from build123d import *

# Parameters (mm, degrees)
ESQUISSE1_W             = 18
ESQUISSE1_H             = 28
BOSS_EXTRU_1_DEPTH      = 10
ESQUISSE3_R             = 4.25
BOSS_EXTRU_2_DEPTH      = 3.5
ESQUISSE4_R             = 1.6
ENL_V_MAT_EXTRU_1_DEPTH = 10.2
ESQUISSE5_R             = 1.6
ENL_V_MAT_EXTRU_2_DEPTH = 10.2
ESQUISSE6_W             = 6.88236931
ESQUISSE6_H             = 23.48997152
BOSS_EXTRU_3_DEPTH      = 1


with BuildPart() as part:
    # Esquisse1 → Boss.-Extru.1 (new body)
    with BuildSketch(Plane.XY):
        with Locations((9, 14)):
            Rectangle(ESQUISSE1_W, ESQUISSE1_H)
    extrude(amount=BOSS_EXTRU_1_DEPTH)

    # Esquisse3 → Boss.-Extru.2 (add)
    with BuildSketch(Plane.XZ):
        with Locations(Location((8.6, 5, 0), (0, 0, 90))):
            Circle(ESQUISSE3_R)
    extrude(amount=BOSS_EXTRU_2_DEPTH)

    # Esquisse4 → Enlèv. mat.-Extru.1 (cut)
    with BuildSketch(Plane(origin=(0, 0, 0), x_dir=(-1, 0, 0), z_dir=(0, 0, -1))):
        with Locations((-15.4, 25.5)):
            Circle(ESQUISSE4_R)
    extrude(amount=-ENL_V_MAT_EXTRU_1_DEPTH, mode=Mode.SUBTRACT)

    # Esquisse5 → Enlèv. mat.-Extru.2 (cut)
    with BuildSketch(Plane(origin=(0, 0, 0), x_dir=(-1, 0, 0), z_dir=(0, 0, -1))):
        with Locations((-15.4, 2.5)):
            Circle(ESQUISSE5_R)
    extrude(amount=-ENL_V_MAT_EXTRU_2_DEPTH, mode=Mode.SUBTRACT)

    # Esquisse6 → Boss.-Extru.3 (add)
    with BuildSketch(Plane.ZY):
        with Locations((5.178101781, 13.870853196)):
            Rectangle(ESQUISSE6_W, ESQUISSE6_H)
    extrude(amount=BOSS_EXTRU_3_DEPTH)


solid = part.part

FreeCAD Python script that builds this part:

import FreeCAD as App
import Part
import Sketcher
from FreeCAD import Vector
Q = App.Units.Quantity

doc = App.newDocument("Part")
params = doc.addObject("Spreadsheet::Sheet", "Params")
for row, (alias, value) in enumerate([
    ("sketch1_width", "18 mm"),
    ("sketch1_height", "28 mm"),
    ("pad1_length", "10 mm"),
    ("sketch2_diameter", "8.5 mm"),
    ("pad2_length", "3.5 mm"),
    ("sketch3_diameter", "3.2 mm"),
    ("pocket1_length", "10.2 mm"),
    ("sketch4_diameter", "3.2 mm"),
    ("pocket2_length", "10.2 mm"),
    ("pad3_length", "1 mm"),
], start=1):
    params.set(f"A{row}", alias)
    params.set(f"B{row}", "=" + value)
    params.setAlias(f"B{row}", alias)

body = doc.addObject("PartDesign::Body", "Body")

# Sketch on XY plane
sketch1 = body.newObject("Sketcher::SketchObject", "Sketch")
sketch1.AttachmentSupport = (doc.getObject("XY_Plane"), [""])
sketch1.MapMode = "FlatFace"
sketch1.addGeometry([
    Part.LineSegment(Vector(0, 28, 0), Vector(0, 0, 0)),
    Part.LineSegment(Vector(0, 0, 0), Vector(18, 0, 0)),
    Part.LineSegment(Vector(18, 0, 0), Vector(18, 28, 0)),
    Part.LineSegment(Vector(18, 28, 0), Vector(0, 28, 0)),
], False)
sketch1.addConstraint([
    Sketcher.Constraint("Coincident", 0, 2, 1, 1),
    Sketcher.Constraint("Coincident", 1, 2, 2, 1),
    Sketcher.Constraint("Coincident", 2, 2, 3, 1),
    Sketcher.Constraint("Coincident", 3, 2, 0, 1),
    Sketcher.Constraint("Vertical", 0),
    Sketcher.Constraint("Horizontal", 1),
    Sketcher.Constraint("Vertical", 2),
    Sketcher.Constraint("Horizontal", 3),
    Sketcher.Constraint("Coincident", 0, 2, -1, 1),
    Sketcher.Constraint("DistanceX", 1, 1, 1, 2, Q("18 mm")),
    Sketcher.Constraint("DistanceY", 0, 2, 0, 1, Q("28 mm")),
])
sketch1.setExpression("Constraints[9]", "Params.sketch1_width")
sketch1.setExpression("Constraints[10]", "Params.sketch1_height")
pad1 = body.newObject("PartDesign::Pad", "Pad")
pad1.Profile = sketch1
pad1.setExpression("Length", "Params.pad1_length")

# Sketch on XZ plane
sketch2 = body.newObject("Sketcher::SketchObject", "Sketch001")
sketch2.AttachmentSupport = (doc.getObject("XZ_Plane"), [""])
sketch2.MapMode = "FlatFace"
sketch2.addGeometry(Part.Circle(Vector(8.6, 5, 0), Vector(0, 0, 1), 4.2), False)
sketch2.addConstraint([
    Sketcher.Constraint("Diameter", 0, Q("8.5 mm")),
    Sketcher.Constraint("DistanceY", -1, 1, 0, 3, Q("5 mm")),
    Sketcher.Constraint("DistanceX", -1, 1, 0, 3, Q("8.6 mm")),
])
sketch2.setExpression("Constraints[0]", "Params.sketch2_diameter")
pad2 = body.newObject("PartDesign::Pad", "Pad001")
pad2.Profile = sketch2
pad2.setExpression("Length", "Params.pad2_length")

# Sketch on XY plane
sketch3 = body.newObject("Sketcher::SketchObject", "Sketch002")
sketch3.AttachmentSupport = (doc.getObject("XY_Plane"), [""])
sketch3.MapMode = "FlatFace"
sketch3.addGeometry(Part.Circle(Vector(15.4, 25.5, 0), Vector(0, 0, 1), 1.6), False)
sketch3.addConstraint([
    Sketcher.Constraint("Diameter", 0, Q("3.2 mm")),
    Sketcher.Constraint("DistanceX", -1, 1, 0, 3, Q("15.4 mm")),
    Sketcher.Constraint("DistanceY", -1, 1, 0, 3, Q("25.5 mm")),
])
sketch3.setExpression("Constraints[0]", "Params.sketch3_diameter")
pocket1 = body.newObject("PartDesign::Pocket", "Pocket")
pocket1.Profile = sketch3
pocket1.setExpression("Length", "Params.pocket1_length")
pocket1.Reversed = True

# Sketch on XY plane
sketch4 = body.newObject("Sketcher::SketchObject", "Sketch003")
sketch4.AttachmentSupport = (doc.getObject("XY_Plane"), [""])
sketch4.MapMode = "FlatFace"
sketch4.addGeometry(Part.Circle(Vector(15.4, 2.5, 0), Vector(0, 0, 1), 1.6), False)
sketch4.addConstraint([
    Sketcher.Constraint("Diameter", 0, Q("3.2 mm")),
    Sketcher.Constraint("DistanceX", -1, 1, 0, 3, Q("15.4 mm")),
    Sketcher.Constraint("DistanceY", -1, 1, 0, 3, Q("2.5 mm")),
])
sketch4.setExpression("Constraints[0]", "Params.sketch4_diameter")
pocket2 = body.newObject("PartDesign::Pocket", "Pocket001")
pocket2.Profile = sketch4
pocket2.setExpression("Length", "Params.pocket2_length")
pocket2.Reversed = True

# Sketch on YZ plane
sketch5 = body.newObject("Sketcher::SketchObject", "Sketch004")
sketch5.AttachmentSupport = (doc.getObject("YZ_Plane"), [""])
sketch5.MapMode = "FlatFace"
sketch5.addGeometry([
    Part.LineSegment(Vector(26, 2, 0), Vector(2, 2, 0)),
    Part.LineSegment(Vector(2, 2, 0), Vector(2, 9, 0)),
    Part.LineSegment(Vector(2, 9, 0), Vector(26, 9, 0)),
    Part.LineSegment(Vector(26, 9, 0), Vector(26, 2, 0)),
], False)
sketch5.addConstraint([
    Sketcher.Constraint("Coincident", 0, 2, 1, 1),
    Sketcher.Constraint("Coincident", 1, 2, 2, 1),
    Sketcher.Constraint("Coincident", 2, 2, 3, 1),
    Sketcher.Constraint("Coincident", 3, 2, 0, 1),
    Sketcher.Constraint("Horizontal", 0),
    Sketcher.Constraint("Vertical", 1),
    Sketcher.Constraint("Horizontal", 2),
    Sketcher.Constraint("Vertical", 3),
    Sketcher.Constraint("DistanceX", 0, 2, 0, 1, Q("23.489972 mm")),
    Sketcher.Constraint("DistanceY", 1, 1, 1, 2, Q("6.882369 mm")),
    Sketcher.Constraint("DistanceX", -1, 1, 2, 2, Q("25.615839 mm")),
    Sketcher.Constraint("DistanceY", -1, 1, 0, 2, Q("1.736917 mm")),
])
pad3 = body.newObject("PartDesign::Pad", "Pad002")
pad3.Profile = sketch5
pad3.setExpression("Length", "Params.pad3_length")
pad3.Reversed = True

doc.recompute()
